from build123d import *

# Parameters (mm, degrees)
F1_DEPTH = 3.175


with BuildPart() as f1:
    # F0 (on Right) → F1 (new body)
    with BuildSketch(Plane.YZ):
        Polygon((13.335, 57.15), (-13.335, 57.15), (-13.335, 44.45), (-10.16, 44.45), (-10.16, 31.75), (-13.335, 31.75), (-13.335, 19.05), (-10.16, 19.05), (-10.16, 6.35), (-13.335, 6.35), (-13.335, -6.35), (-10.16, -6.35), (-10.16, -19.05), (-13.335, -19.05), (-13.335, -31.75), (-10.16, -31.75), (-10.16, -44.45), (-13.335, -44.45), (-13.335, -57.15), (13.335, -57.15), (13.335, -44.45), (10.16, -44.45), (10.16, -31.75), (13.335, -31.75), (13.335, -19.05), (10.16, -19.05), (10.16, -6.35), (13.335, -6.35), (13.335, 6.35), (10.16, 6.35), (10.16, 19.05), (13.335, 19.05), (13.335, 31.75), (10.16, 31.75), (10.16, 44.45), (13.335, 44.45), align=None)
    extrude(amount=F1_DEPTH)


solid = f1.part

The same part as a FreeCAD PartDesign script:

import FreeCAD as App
import Part
import Sketcher

V = App.Vector
Q = App.Units.Quantity


def add_polygon(sketch, points):
    """Adds a closed chain of lines whose ends are joined by coincident constraints."""
    first, n = sketch.GeometryCount, len(points)
    for a, b in zip(points, points[1:] + points[:1]):
        sketch.addGeometry(Part.LineSegment(App.Vector(*a, 0), App.Vector(*b, 0)), False)
    for i in range(n):
        sketch.addConstraint(Sketcher.Constraint("Coincident", first + i, 2, first + (i + 1) % n, 1))

doc = App.newDocument("Part")
body = doc.addObject("PartDesign::Body", "Body")

# Sketch on YZ plane
sketch1 = doc.addObject("Sketcher::SketchObject", "Sketch")
body.addObject(sketch1)
sketch1.AttachmentSupport = (doc.YZ_Plane, [""])
sketch1.MapMode = "FlatFace"
add_polygon(sketch1, [(13.3, 57.1), (-13.3, 57.1), (-13.3, 44.5), (-10.2, 44.5), (-10.2, 31.8), (-13.3, 31.8), (-13.3, 19.1), (-10.2, 19.1), (-10.2, 6.3), (-13.3, 6.3), (-13.3, -6.3), (-10.2, -6.3), (-10.2, -19.1), (-13.3, -19.1), (-13.3, -31.8), (-10.2, -31.8), (-10.2, -44.5), (-13.3, -44.5), (-13.3, -57.1), (13.3, -57.1), (13.3, -44.5), (10.2, -44.5), (10.2, -31.8), (13.3, -31.8), (13.3, -19.1), (10.2, -19.1), (10.2, -6.3), (13.3, -6.3), (13.3, 6.3), (10.2, 6.3), (10.2, 19.1), (13.3, 19.1), (13.3, 31.8), (10.2, 31.8), (10.2, 44.5), (13.3, 44.5)])  # lines 0-35
sketch1.addConstraint([
    Sketcher.Constraint("Horizontal", 0),
    Sketcher.Constraint("Vertical", 1),
    Sketcher.Constraint("Horizontal", 2),
    Sketcher.Constraint("Vertical", 3),
    Sketcher.Constraint("Horizontal", 4),
    Sketcher.Constraint("Vertical", 5),
    Sketcher.Constraint("Horizontal", 6),
    Sketcher.Constraint("Vertical", 7),
    Sketcher.Constraint("Horizontal", 8),
    Sketcher.Constraint("Vertical", 9),
    Sketcher.Constraint("Horizontal", 10),
    Sketcher.Constraint("Vertical", 11),
    Sketcher.Constraint("Horizontal", 12),
    Sketcher.Constraint("Vertical", 13),
    Sketcher.Constraint("Horizontal", 14),
    Sketcher.Constraint("Vertical", 15),
    Sketcher.Constraint("Horizontal", 16),
    Sketcher.Constraint("Vertical", 17),
    Sketcher.Constraint("Horizontal", 18),
    Sketcher.Constraint("Vertical", 19),
    Sketcher.Constraint("Horizontal", 20),
    Sketcher.Constraint("Vertical", 21),
    Sketcher.Constraint("Horizontal", 22),
    Sketcher.Constraint("Vertical", 23),
    Sketcher.Constraint("Horizontal", 24),
    Sketcher.Constraint("Vertical", 25),
    Sketcher.Constraint("Horizontal", 26),
    Sketcher.Constraint("Vertical", 27),
    Sketcher.Constraint("Horizontal", 28),
    Sketcher.Constraint("Vertical", 29),
    Sketcher.Constraint("Horizontal", 30),
    Sketcher.Constraint("Vertical", 31),
    Sketcher.Constraint("Horizontal", 32),
    Sketcher.Constraint("Vertical", 33),
    Sketcher.Constraint("Horizontal", 34),
    Sketcher.Constraint("Vertical", 35),
    Sketcher.Constraint("Symmetric", 0, 2, 18, 2, -1, 1),
    Sketcher.Constraint("Symmetric", 2, 2, 20, 2, -1, 1),
    Sketcher.Constraint("Symmetric", 4, 2, 22, 2, -1, 1),
    Sketcher.Constraint("Symmetric", 6, 2, 24, 2, -1, 1),
    Sketcher.Constraint("Symmetric", 8, 2, 26, 2, -1, 1),
    Sketcher.Constraint("Symmetric", 10, 2, 28, 2, -1, 1),
    Sketcher.Constraint("Symmetric", 12, 2, 30, 2, -1, 1),
    Sketcher.Constraint("Symmetric", 14, 2, 32, 2, -1, 1),
    Sketcher.Constraint("Symmetric", 16, 2, 34, 2, -1, 1),
    Sketcher.Constraint("Symmetric", 16, 2, 19, 2, -2),
    Sketcher.Constraint("Symmetric", 14, 2, 21, 2, -2),
    Sketcher.Constraint("Symmetric", 12, 2, 23, 2, -2),
    Sketcher.Constraint("Symmetric", 10, 2, 25, 2, -2),
    Sketcher.Constraint("Vertical", 1, 2, 4, 2),
    Sketcher.Constraint("Vertical", 3, 2, 6, 2),
    Sketcher.Constraint("Vertical", 5, 2, 8, 2),
    Sketcher.Constraint("Equal", 1, 3),
    Sketcher.Constraint("Equal", 3, 5),
    Sketcher.Constraint("Equal", 5, 7),
    Sketcher.Constraint("Equal", 7, 9),
    Sketcher.Constraint("DistanceY", 1, 2, 1, 1, Q("0.5 in")),
    Sketcher.Constraint("DistanceX", 0, 2, 0, 1, Q("1.05 in")),
    Sketcher.Constraint("DistanceX", 2, 2, -1, 1, Q("0.4 in")),
])
pad1 = doc.addObject("PartDesign::Pad", "Pad")
body.addObject(pad1)
pad1.Profile = sketch1
pad1.Length = Q("0.125 in")

doc.recompute()
